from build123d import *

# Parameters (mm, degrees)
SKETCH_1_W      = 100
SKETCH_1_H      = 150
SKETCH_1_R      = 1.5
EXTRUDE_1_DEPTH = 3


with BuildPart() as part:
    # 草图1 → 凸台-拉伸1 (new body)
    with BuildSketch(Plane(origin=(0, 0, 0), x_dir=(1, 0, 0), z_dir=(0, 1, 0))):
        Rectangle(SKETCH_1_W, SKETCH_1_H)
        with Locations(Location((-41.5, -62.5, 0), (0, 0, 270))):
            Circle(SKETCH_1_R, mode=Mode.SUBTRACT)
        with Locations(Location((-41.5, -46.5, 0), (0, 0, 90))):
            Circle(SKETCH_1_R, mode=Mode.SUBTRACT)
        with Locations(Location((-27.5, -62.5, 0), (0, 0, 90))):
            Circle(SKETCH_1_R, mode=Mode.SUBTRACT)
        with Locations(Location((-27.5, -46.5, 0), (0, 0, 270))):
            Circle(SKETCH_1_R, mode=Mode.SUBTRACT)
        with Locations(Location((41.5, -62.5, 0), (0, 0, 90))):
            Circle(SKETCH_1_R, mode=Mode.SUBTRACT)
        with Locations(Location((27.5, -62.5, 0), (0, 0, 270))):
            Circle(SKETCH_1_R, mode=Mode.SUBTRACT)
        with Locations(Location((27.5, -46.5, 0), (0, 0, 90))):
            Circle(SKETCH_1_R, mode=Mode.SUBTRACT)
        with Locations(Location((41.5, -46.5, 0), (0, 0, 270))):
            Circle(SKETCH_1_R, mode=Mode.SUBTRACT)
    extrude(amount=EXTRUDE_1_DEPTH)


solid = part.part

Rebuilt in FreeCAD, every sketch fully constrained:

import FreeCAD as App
import Part
import Sketcher
from FreeCAD import Vector


def add_polygon(sketch, points):
    """Adds a closed chain of lines whose ends are joined by coincident constraints."""
    first, n = sketch.GeometryCount, len(points)
    for a, b in zip(points, points[1:] + points[:1]):
        sketch.addGeometry(Part.LineSegment(App.Vector(*a, 0), App.Vector(*b, 0)), False)
    for i in range(n):
        sketch.addConstraint(Sketcher.Constraint("Coincident", first + i, 2, first + (i + 1) % n, 1))

doc = App.newDocument("Part")
params = doc.addObject("Spreadsheet::Sheet", "Params")
for row, (alias, value) in enumerate([
    ("sketch1_diameter", "3 mm"),
    ("sketch1_width", "100 mm"),
    ("sketch1_height", "150 mm"),
    ("pad1_length", "3 mm"),
], start=1):
    params.set(f"A{row}", alias)
    params.set(f"B{row}", "=" + value)
    params.setAlias(f"B{row}", alias)

body = doc.addObject("PartDesign::Body", "Body")

sketch1 = body.newObject("Sketcher::SketchObject", "Sketch")
sketch1.AttachmentSupport = (doc.getObject("XZ_Plane"), [""])
sketch1.MapMode = "FlatFace"
add_polygon(sketch1, [(-50, -75), (-50, 75), (50, 75), (50, -75)])
sketch1.addGeometry(Part.Circle(Vector(-41.5, 62.5, 0), Vector(0, 0, 1), 1.5), False)
sketch1.addGeometry(Part.Circle(Vector(-27.5, 62.5, 0), Vector(0, 0, 1), 1.5), False)
sketch1.addGeometry(Part.Circle(Vector(27.5, 62.5, 0), Vector(0, 0, 1), 1.5), False)
sketch1.addGeometry(Part.Circle(Vector(41.5, 62.5, 0), Vector(0, 0, 1), 1.5), False)
sketch1.addGeometry(Part.Circle(Vector(-41.5, 46.5, 0), Vector(0, 0, 1), 1.5), False)
sketch1.addGeometry(Part.Circle(Vector(-27.5, 46.5, 0), Vector(0, 0, 1), 1.5), False)
sketch1.addGeometry(Part.Circle(Vector(27.5, 46.5, 0), Vector(0, 0, 1), 1.5), False)
sketch1.addGeometry(Part.Circle(Vector(41.5, 46.5, 0), Vector(0, 0, 1), 1.5), False)
sketch1.addConstraint([
    Sketcher.Constraint("Vertical", 0),
    Sketcher.Constraint("Horizontal", 1),
    Sketcher.Constraint("Vertical", 2),
    Sketcher.Constraint("Horizontal", 3),
    Sketcher.Constraint("Equal", 4, 5),
    Sketcher.Constraint("Equal", 5, 6),
    Sketcher.Constraint("Equal", 6, 7),
    Sketcher.Constraint("Equal", 7, 8),
    Sketcher.Constraint("Equal", 8, 9),
    Sketcher.Constraint("Equal", 9, 10),
    Sketcher.Constraint("Equal", 10, 11),
    Sketcher.Constraint("Symmetric", 0, 2, 2, 2, -1, 1),
    Sketcher.Constraint("Symmetric", 5, 3, 6, 3, -2),
    Sketcher.Constraint("Symmetric", 4, 3, 7, 3, -2),
    Sketcher.Constraint("Symmetric", 9, 3, 10, 3, -2),
    Sketcher.Constraint("Symmetric", 8, 3, 11, 3, -2),
    Sketcher.Constraint("Horizontal", 4, 3, 5, 3),
    Sketcher.Constraint("Horizontal", 8, 3, 9, 3),
    Sketcher.Constraint("Vertical", 4, 3, 8, 3),
    Sketcher.Constraint("Vertical", 5, 3, 9, 3),
    Sketcher.Constraint("Diameter", 4, 3.0),
    Sketcher.Constraint("DistanceX", 1, 1, 1, 2, 100.0),
    Sketcher.Constraint("DistanceY", 0, 1, 0, 2, 150.0),
    Sketcher.Constraint("DistanceX", 4, 3, 5, 3, 14.0),
    Sketcher.Constraint("DistanceX", 5, 3, 6, 3, 55.0),
    Sketcher.Constraint("DistanceY", 8, 3, 4, 3, 16.0),
    Sketcher.Constraint("DistanceY", -1, 1, 4, 3, 62.5),
])
sketch1.setExpression("Constraints[24]", "Params.sketch1_diameter")
sketch1.setExpression("Constraints[25]", "Params.sketch1_width")
sketch1.setExpression("Constraints[26]", "Params.sketch1_height")
pad1 = body.newObject("PartDesign::Pad", "Pad")
pad1.Profile = sketch1
pad1.setExpression("Length", "Params.pad1_length")
pad1.Reversed = True

doc.recompute()
